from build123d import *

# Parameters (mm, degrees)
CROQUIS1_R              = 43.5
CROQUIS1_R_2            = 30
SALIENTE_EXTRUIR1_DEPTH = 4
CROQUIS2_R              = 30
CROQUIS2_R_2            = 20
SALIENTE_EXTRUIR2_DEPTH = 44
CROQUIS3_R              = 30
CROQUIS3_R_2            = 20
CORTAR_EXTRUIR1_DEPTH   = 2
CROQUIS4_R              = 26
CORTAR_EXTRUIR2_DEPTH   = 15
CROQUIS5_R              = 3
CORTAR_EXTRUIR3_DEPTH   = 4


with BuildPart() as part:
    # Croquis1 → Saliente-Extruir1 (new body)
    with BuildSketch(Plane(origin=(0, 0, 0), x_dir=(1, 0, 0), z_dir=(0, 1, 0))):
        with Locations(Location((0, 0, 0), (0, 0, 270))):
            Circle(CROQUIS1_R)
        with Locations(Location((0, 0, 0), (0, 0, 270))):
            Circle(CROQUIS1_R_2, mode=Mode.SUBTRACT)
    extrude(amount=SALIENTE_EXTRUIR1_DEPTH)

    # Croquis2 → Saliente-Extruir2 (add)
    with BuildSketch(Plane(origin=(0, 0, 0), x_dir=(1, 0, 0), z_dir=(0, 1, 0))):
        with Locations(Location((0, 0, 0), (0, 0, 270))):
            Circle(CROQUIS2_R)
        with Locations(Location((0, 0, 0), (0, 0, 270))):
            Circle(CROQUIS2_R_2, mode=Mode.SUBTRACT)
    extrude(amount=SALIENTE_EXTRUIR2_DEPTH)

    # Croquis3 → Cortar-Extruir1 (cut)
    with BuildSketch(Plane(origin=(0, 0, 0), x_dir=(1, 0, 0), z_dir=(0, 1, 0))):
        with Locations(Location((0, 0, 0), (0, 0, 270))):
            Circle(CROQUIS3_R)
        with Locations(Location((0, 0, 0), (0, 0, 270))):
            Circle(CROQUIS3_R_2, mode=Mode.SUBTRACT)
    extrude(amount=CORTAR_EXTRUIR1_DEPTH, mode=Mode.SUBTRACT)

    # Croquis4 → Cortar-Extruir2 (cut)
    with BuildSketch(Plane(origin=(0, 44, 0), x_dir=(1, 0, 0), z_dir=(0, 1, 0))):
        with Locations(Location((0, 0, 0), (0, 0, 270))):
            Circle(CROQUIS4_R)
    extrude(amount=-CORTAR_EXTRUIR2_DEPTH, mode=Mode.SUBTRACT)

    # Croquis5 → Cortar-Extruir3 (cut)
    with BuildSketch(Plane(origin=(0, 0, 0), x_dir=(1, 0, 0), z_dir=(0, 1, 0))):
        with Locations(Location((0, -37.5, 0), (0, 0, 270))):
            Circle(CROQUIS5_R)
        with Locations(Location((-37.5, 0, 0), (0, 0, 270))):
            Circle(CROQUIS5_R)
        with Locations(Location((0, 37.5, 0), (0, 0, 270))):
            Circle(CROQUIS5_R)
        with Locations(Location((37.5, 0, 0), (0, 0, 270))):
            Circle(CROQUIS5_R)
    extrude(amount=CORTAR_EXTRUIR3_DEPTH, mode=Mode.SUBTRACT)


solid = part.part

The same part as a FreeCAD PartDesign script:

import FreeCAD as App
import Part
import Sketcher
from FreeCAD import Vector

doc = App.newDocument("Part")
body = doc.addObject("PartDesign::Body", "Body")

# Sketch on XZ plane
sketch1 = body.newObject("Sketcher::SketchObject", "Sketch")
sketch1.AttachmentSupport = (doc.getObject("XZ_Plane"), [""])
sketch1.MapMode = "FlatFace"
sketch1.addGeometry(Part.Circle(Vector(0, 0, 0), Vector(0, 0, 1), 43.5), False)
sketch1.addGeometry(Part.Circle(Vector(0, 0, 0), Vector(0, 0, 1), 30), False)
sketch1.addConstraint(Sketcher.Constraint("Coincident", 0, 3, -1, 1))
sketch1.addConstraint(Sketcher.Constraint("Coincident", 1, 3, -1, 1))
sketch1.addConstraint(Sketcher.Constraint("Diameter", 0, 87.0))
sketch1.addConstraint(Sketcher.Constraint("Diameter", 1, 60.0))
pad1 = body.newObject("PartDesign::Pad", "Pad")
pad1.Profile = sketch1
pad1.Length = 4
pad1.Reversed = True

# Sketch on XZ plane
sketch2 = body.newObject("Sketcher::SketchObject", "Sketch001")
sketch2.AttachmentSupport = (doc.getObject("XZ_Plane"), [""])
sketch2.MapMode = "FlatFace"
sketch2.addGeometry(Part.Circle(Vector(0, 0, 0), Vector(0, 0, 1), 30), False)
sketch2.addGeometry(Part.Circle(Vector(0, 0, 0), Vector(0, 0, 1), 20), False)
sketch2.addConstraint(Sketcher.Constraint("Coincident", 0, 3, -1, 1))
sketch2.addConstraint(Sketcher.Constraint("Coincident", 1, 3, -1, 1))
sketch2.addConstraint(Sketcher.Constraint("Diameter", 0, 60.0))
sketch2.addConstraint(Sketcher.Constraint("Diameter", 1, 40.0))
pad2 = body.newObject("PartDesign::Pad", "Pad001")
pad2.Profile = sketch2
pad2.Length = 44
pad2.Reversed = True

# Sketch on XZ plane
sketch3 = body.newObject("Sketcher::SketchObject", "Sketch002")
sketch3.AttachmentSupport = (doc.getObject("XZ_Plane"), [""])
sketch3.MapMode = "FlatFace"
sketch3.addGeometry(Part.Circle(Vector(0, 0, 0), Vector(0, 0, 1), 30), False)
sketch3.addGeometry(Part.Circle(Vector(0, 0, 0), Vector(0, 0, 1), 20), False)
sketch3.addConstraint(Sketcher.Constraint("Coincident", 0, 3, -1, 1))
sketch3.addConstraint(Sketcher.Constraint("Coincident", 1, 3, -1, 1))
sketch3.addConstraint(Sketcher.Constraint("Diameter", 0, 60.0))
sketch3.addConstraint(Sketcher.Constraint("Diameter", 1, 40.0))
pocket1 = body.newObject("PartDesign::Pocket", "Pocket")
pocket1.Profile = sketch3
pocket1.Length = 2

# Sketch on XZ plane
sketch4 = body.newObject("Sketcher::SketchObject", "Sketch003")
sketch4.AttachmentSupport = (doc.getObject("XZ_Plane"), [""])
sketch4.MapMode = "FlatFace"
sketch4.AttachmentOffset = App.Placement(Vector(0, 0, -44), App.Rotation())
sketch4.addGeometry(Part.Circle(Vector(0, 0, 0), Vector(0, 0, 1), 26), False)
sketch4.addConstraint(Sketcher.Constraint("Coincident", 0, 3, -1, 1))
sketch4.addConstraint(Sketcher.Constraint("Diameter", 0, 52.0))
pocket2 = body.newObject("PartDesign::Pocket", "Pocket001")
pocket2.Profile = sketch4
pocket2.Length = 15
pocket2.Reversed = True

# Sketch on XZ plane
sketch5 = body.newObject("Sketcher::SketchObject", "Sketch004")
sketch5.AttachmentSupport = (doc.getObject("XZ_Plane"), [""])
sketch5.MapMode = "FlatFace"
sketch5.addGeometry(Part.Circle(Vector(0, 37.5, 0), Vector(0, 0, 1), 3), False)
sketch5.addGeometry(Part.Circle(Vector(-37.5, 0, 0), Vector(0, 0, 1), 3), False)
sketch5.addGeometry(Part.Circle(Vector(0, -37.5, 0), Vector(0, 0, 1), 3), False)
sketch5.addGeometry(Part.Circle(Vector(37.5, 0, 0), Vector(0, 0, 1), 3), False)
sketch5.addConstraint(Sketcher.Constraint("Equal", 0, 1))
sketch5.addConstraint(Sketcher.Constraint("Equal", 1, 2))
sketch5.addConstraint(Sketcher.Constraint("Equal", 2, 3))
sketch5.addConstraint(Sketcher.Constraint("Symmetric", 0, 3, 2, 3, -1, 1))
sketch5.addConstraint(Sketcher.Constraint("Symmetric", 1, 3, 3, 3, -1, 1))
sketch5.addConstraint(Sketcher.Constraint("PointOnObject", 0, 3, -2))
sketch5.addConstraint(Sketcher.Constraint("PointOnObject", 1, 3, -1))
sketch5.addConstraint(Sketcher.Constraint("Diameter", 0, 6.0))
sketch5.addConstraint(Sketcher.Constraint("DistanceY", 2, 3, 0, 3, 75.0))
sketch5.addConstraint(Sketcher.Constraint("DistanceX", 1, 3, 3, 3, 75.0))
pocket3 = body.newObject("PartDesign::Pocket", "Pocket002")
pocket3.Profile = sketch5
pocket3.Length = 4

doc.recompute()
